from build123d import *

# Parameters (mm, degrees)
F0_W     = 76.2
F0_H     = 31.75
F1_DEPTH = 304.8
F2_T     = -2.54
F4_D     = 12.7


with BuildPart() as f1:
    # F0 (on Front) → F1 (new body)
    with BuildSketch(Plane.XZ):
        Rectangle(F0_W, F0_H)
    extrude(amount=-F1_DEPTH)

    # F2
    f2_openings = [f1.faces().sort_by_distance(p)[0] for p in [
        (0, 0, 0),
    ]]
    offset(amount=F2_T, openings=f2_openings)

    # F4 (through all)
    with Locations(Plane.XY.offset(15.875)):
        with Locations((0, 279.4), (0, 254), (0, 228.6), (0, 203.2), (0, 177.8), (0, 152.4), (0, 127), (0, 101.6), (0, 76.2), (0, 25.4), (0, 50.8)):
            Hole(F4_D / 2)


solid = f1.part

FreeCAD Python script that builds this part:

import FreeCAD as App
import Part
import Sketcher

V = App.Vector
Q = App.Units.Quantity


def faces_at(feature, points):
    """Names of the faces that lie closest to the given points."""
    faces = feature.Shape.Faces
    near = lambda p: min(range(len(faces)), key=lambda i: faces[i].distToShape(Part.Vertex(*p))[0])
    return sorted({f"Face{near(p) + 1}" for p in points})


def add_polygon(sketch, points):
    """Adds a closed chain of lines whose ends are joined by coincident constraints."""
    first, n = sketch.GeometryCount, len(points)
    for a, b in zip(points, points[1:] + points[:1]):
        sketch.addGeometry(Part.LineSegment(App.Vector(*a, 0), App.Vector(*b, 0)), False)
    for i in range(n):
        sketch.addConstraint(Sketcher.Constraint("Coincident", first + i, 2, first + (i + 1) % n, 1))

doc = App.newDocument("Part")
params = doc.addObject("Spreadsheet::Sheet", "Params")
for row, (alias, value) in enumerate([
    ("sketch1_width", "3 in"),
    ("sketch1_height", "1.25 in"),
    ("pad1_length", "12 in"),
    ("thickness_wall", "0.1 in"),
    ("sketch2_diameter", "0.5 in"),
    ("hole_diameter", "0.5 in"),
], start=1):
    params.set(f"A{row}", alias)
    params.set(f"B{row}", "=" + value)
    params.setAlias(f"B{row}", alias)

body = doc.addObject("PartDesign::Body", "Body")

# Sketch on XZ plane
sketch1 = doc.addObject("Sketcher::SketchObject", "Sketch")
body.addObject(sketch1)
sketch1.AttachmentSupport = (doc.XZ_Plane, [""])
sketch1.MapMode = "FlatFace"
add_polygon(sketch1, [(-38, 16), (-38, -16), (38, -16), (38, 16)])  # lines 0-3
sketch1.addConstraint([
    Sketcher.Constraint("Vertical", 0),
    Sketcher.Constraint("Horizontal", 1),
    Sketcher.Constraint("Vertical", 2),
    Sketcher.Constraint("Horizontal", 3),
    Sketcher.Constraint("Symmetric", 0, 2, 2, 2, -1, 1),
    Sketcher.Constraint("DistanceX", 1, 1, 1, 2, Q("3 in")),
    Sketcher.Constraint("DistanceY", 0, 2, 0, 1, Q("1.25 in")),
])
sketch1.setExpression("Constraints[9]", "Params.sketch1_width")
sketch1.setExpression("Constraints[10]", "Params.sketch1_height")
pad1 = doc.addObject("PartDesign::Pad", "Pad")
body.addObject(pad1)
pad1.Profile = sketch1
pad1.setExpression("Length", "Params.pad1_length")
pad1.Reversed = True
doc.recompute()

thickness = doc.addObject("PartDesign::Thickness", "Thickness")
body.addObject(thickness)
thickness.Base = (pad1, faces_at(pad1, [(0, 0, 0)]))
thickness.setExpression("Value", "Params.thickness_wall")
thickness.Reversed = True
thickness.Join = "Arc"

# Sketch on XY plane
sketch2 = doc.addObject("Sketcher::SketchObject", "Sketch001")
body.addObject(sketch2)
sketch2.AttachmentSupport = (doc.XY_Plane, [""])
sketch2.MapMode = "FlatFace"
sketch2.AttachmentOffset = App.Placement(V(0, 0, 0.625 * 25.4), App.Rotation())
sketch2.addGeometry([
    Part.Circle(V(0, 279, 0), V(0, 0, 1), 6),  # 0
    Part.Circle(V(0, 254, 0), V(0, 0, 1), 6),  # 1
    Part.Circle(V(0, 229, 0), V(0, 0, 1), 6),  # 2
    Part.Circle(V(0, 203, 0), V(0, 0, 1), 6),  # 3
    Part.Circle(V(0, 178, 0), V(0, 0, 1), 6),  # 4
    Part.Circle(V(0, 152, 0), V(0, 0, 1), 6),  # 5
    Part.Circle(V(0, 127, 0), V(0, 0, 1), 6),  # 6
    Part.Circle(V(0, 102, 0), V(0, 0, 1), 6),  # 7
    Part.Circle(V(0, 76, 0), V(0, 0, 1), 6),  # 8
    Part.Circle(V(0, 25, 0), V(0, 0, 1), 6),  # 9
    Part.Circle(V(0, 51, 0), V(0, 0, 1), 6),  # 10
], False)
sketch2.addConstraint([
    Sketcher.Constraint("Equal", 0, 1),
    Sketcher.Constraint("Equal", 1, 2),
    Sketcher.Constraint("Equal", 2, 3),
    Sketcher.Constraint("Equal", 3, 4),
    Sketcher.Constraint("Equal", 4, 5),
    Sketcher.Constraint("Equal", 5, 6),
    Sketcher.Constraint("Equal", 6, 7),
    Sketcher.Constraint("Equal", 7, 8),
    Sketcher.Constraint("Equal", 8, 9),
    Sketcher.Constraint("Equal", 9, 10),
    Sketcher.Constraint("PointOnObject", 0, 3, -2),
    Sketcher.Constraint("PointOnObject", 1, 3, -2),
    Sketcher.Constraint("PointOnObject", 2, 3, -2),
    Sketcher.Constraint("PointOnObject", 3, 3, -2),
    Sketcher.Constraint("PointOnObject", 4, 3, -2),
    Sketcher.Constraint("PointOnObject", 5, 3, -2),
    Sketcher.Constraint("PointOnObject", 6, 3, -2),
    Sketcher.Constraint("PointOnObject", 7, 3, -2),
    Sketcher.Constraint("PointOnObject", 8, 3, -2),
    Sketcher.Constraint("PointOnObject", 9, 3, -2),
    Sketcher.Constraint("PointOnObject", 10, 3, -2),
    Sketcher.Constraint("Diameter", 0, Q("0.5 in")),
    Sketcher.Constraint("DistanceY", -1, 1, 0, 3, Q("11 in")),
    Sketcher.Constraint("DistanceY", -1, 1, 1, 3, Q("10 in")),
    Sketcher.Constraint("DistanceY", -1, 1, 2, 3, Q("9 in")),
    Sketcher.Constraint("DistanceY", -1, 1, 3, 3, Q("8 in")),
    Sketcher.Constraint("DistanceY", -1, 1, 4, 3, Q("7 in")),
    Sketcher.Constraint("DistanceY", -1, 1, 5, 3, Q("6 in")),
    Sketcher.Constraint("DistanceY", -1, 1, 6, 3, Q("5 in")),
    Sketcher.Constraint("DistanceY", -1, 1, 7, 3, Q("4 in")),
    Sketcher.Constraint("DistanceY", -1, 1, 8, 3, Q("3 in")),
    Sketcher.Constraint("DistanceY", -1, 1, 9, 3, Q("1 in")),
    Sketcher.Constraint("DistanceY", -1, 1, 10, 3, Q("2 in")),
])
sketch2.setExpression("Constraints[21]", "Params.sketch2_diameter")
doc.recompute()
hole = doc.addObject("PartDesign::Hole", "Hole")
body.addObject(hole)
hole.Profile = sketch2
hole.ThreadType = "None"
hole.setExpression("Diameter", "Params.hole_diameter")
hole.DepthType = "ThroughAll"

doc.recompute()
